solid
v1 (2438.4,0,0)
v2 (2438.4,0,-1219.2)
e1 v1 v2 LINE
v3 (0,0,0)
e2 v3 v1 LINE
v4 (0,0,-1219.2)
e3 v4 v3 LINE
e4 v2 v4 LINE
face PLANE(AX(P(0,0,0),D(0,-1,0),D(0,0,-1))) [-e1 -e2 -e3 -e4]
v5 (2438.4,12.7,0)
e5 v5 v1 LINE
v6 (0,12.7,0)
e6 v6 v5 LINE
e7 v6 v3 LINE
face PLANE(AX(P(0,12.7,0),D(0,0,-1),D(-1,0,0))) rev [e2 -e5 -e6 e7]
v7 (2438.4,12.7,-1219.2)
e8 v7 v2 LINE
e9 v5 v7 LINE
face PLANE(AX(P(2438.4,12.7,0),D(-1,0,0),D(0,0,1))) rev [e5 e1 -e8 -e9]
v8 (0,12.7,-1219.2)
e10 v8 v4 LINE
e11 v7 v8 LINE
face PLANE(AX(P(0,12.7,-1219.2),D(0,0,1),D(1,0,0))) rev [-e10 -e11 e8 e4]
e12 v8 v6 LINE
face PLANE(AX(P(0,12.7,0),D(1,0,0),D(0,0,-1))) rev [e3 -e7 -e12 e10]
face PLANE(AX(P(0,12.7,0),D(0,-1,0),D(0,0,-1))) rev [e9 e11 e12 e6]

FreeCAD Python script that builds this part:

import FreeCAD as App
import Part
import Sketcher
from FreeCAD import Vector
Q = App.Units.Quantity

doc = App.newDocument("Part")
body = doc.addObject("PartDesign::Body", "Body")

sketch1 = body.newObject("Sketcher::SketchObject", "Sketch")
sketch1.AttachmentSupport = (doc.getObject("XZ_Plane"), [""])
sketch1.MapMode = "FlatFace"
sketch1.addGeometry([
    Part.LineSegment(Vector(0, -1219, 0), Vector(0, 0, 0)),
    Part.LineSegment(Vector(0, 0, 0), Vector(2438, 0, 0)),
    Part.LineSegment(Vector(2438, 0, 0), Vector(2438, -1219, 0)),
    Part.LineSegment(Vector(2438, -1219, 0), Vector(0, -1219, 0)),
], False)
sketch1.addConstraint([
    Sketcher.Constraint("Coincident", 0, 2, 1, 1),
    Sketcher.Constraint("Coincident", 1, 2, 2, 1),
    Sketcher.Constraint("Coincident", 2, 2, 3, 1),
    Sketcher.Constraint("Coincident", 3, 2, 0, 1),
    Sketcher.Constraint("Vertical", 0),
    Sketcher.Constraint("Horizontal", 1),
    Sketcher.Constraint("Vertical", 2),
    Sketcher.Constraint("Horizontal", 3),
    Sketcher.Constraint("Coincident", 0, 2, -1, 1),
    Sketcher.Constraint("DistanceX", 1, 1, 1, 2, Q("96 in")),
    Sketcher.Constraint("DistanceY", 0, 1, 0, 2, Q("48 in")),
])
pad1 = body.newObject("PartDesign::Pad", "Pad")
pad1.Profile = sketch1
pad1.Length = Q("0.5 in")
pad1.Reversed = True

doc.recompute()
